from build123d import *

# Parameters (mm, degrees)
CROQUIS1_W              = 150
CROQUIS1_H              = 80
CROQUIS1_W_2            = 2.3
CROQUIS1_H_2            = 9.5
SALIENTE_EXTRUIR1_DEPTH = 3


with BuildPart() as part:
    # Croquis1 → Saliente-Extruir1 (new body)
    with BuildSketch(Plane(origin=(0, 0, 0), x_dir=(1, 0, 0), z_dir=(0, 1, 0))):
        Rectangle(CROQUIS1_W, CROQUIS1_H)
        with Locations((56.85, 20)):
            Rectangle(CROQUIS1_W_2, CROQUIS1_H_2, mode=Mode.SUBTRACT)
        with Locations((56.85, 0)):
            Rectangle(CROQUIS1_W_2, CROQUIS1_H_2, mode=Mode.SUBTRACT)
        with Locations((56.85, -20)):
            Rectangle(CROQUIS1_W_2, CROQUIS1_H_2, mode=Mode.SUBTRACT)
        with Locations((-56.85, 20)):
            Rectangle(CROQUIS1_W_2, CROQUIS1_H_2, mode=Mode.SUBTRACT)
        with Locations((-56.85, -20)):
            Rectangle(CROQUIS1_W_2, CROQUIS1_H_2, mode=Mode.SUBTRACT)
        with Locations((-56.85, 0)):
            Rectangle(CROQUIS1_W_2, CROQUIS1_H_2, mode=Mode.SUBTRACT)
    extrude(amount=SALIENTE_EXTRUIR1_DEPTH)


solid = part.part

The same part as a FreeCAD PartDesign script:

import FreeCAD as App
import Part
import Sketcher
from FreeCAD import Vector
Q = App.Units.Quantity


def add_polygon(sketch, points):
    """Adds a closed chain of lines whose ends are joined by coincident constraints."""
    first, n = sketch.GeometryCount, len(points)
    for a, b in zip(points, points[1:] + points[:1]):
        sketch.addGeometry(Part.LineSegment(App.Vector(*a, 0), App.Vector(*b, 0)), False)
    for i in range(n):
        sketch.addConstraint(Sketcher.Constraint("Coincident", first + i, 2, first + (i + 1) % n, 1))

doc = App.newDocument("Part")
body = doc.addObject("PartDesign::Body", "Body")

sketch1 = body.newObject("Sketcher::SketchObject", "Sketch")
sketch1.AttachmentSupport = (doc.getObject("XZ_Plane"), [""])
sketch1.MapMode = "FlatFace"
add_polygon(sketch1, [(-75, -40), (-75, 40), (75, 40), (75, -40)])
add_polygon(sketch1, [(-55.7, 24.8), (-58, 24.8), (-58, 15.2), (-55.7, 15.2)])
add_polygon(sketch1, [(58, 24.8), (55.7, 24.8), (55.7, 15.2), (58, 15.2)])
add_polygon(sketch1, [(-55.7, 4.8), (-58, 4.8), (-58, -4.8), (-55.7, -4.8)])
add_polygon(sketch1, [(-55.7, -15.2), (-58, -15.2), (-58, -24.8), (-55.7, -24.8)])
add_polygon(sketch1, [(58, 4.8), (55.7, 4.8), (55.7, -4.8), (58, -4.8)])
add_polygon(sketch1, [(58, -15.2), (55.7, -15.2), (55.7, -24.8), (58, -24.8)])
sketch1.addConstraint(Sketcher.Constraint("Vertical", 0))
sketch1.addConstraint(Sketcher.Constraint("Horizontal", 1))
sketch1.addConstraint(Sketcher.Constraint("Vertical", 2))
sketch1.addConstraint(Sketcher.Constraint("Horizontal", 3))
sketch1.addConstraint(Sketcher.Constraint("Horizontal", 4))
sketch1.addConstraint(Sketcher.Constraint("Vertical", 5))
sketch1.addConstraint(Sketcher.Constraint("Horizontal", 6))
sketch1.addConstraint(Sketcher.Constraint("Vertical", 7))
sketch1.addConstraint(Sketcher.Constraint("Horizontal", 8))
sketch1.addConstraint(Sketcher.Constraint("Vertical", 9))
sketch1.addConstraint(Sketcher.Constraint("Horizontal", 10))
sketch1.addConstraint(Sketcher.Constraint("Vertical", 11))
sketch1.addConstraint(Sketcher.Constraint("Horizontal", 12))
sketch1.addConstraint(Sketcher.Constraint("Vertical", 13))
sketch1.addConstraint(Sketcher.Constraint("Horizontal", 14))
sketch1.addConstraint(Sketcher.Constraint("Vertical", 15))
sketch1.addConstraint(Sketcher.Constraint("Horizontal", 16))
sketch1.addConstraint(Sketcher.Constraint("Vertical", 17))
sketch1.addConstraint(Sketcher.Constraint("Horizontal", 18))
sketch1.addConstraint(Sketcher.Constraint("Vertical", 19))
sketch1.addConstraint(Sketcher.Constraint("Horizontal", 20))
sketch1.addConstraint(Sketcher.Constraint("Vertical", 21))
sketch1.addConstraint(Sketcher.Constraint("Horizontal", 22))
sketch1.addConstraint(Sketcher.Constraint("Vertical", 23))
sketch1.addConstraint(Sketcher.Constraint("Horizontal", 24))
sketch1.addConstraint(Sketcher.Constraint("Vertical", 25))
sketch1.addConstraint(Sketcher.Constraint("Horizontal", 26))
sketch1.addConstraint(Sketcher.Constraint("Vertical", 27))
sketch1.addConstraint(Sketcher.Constraint("Symmetric", 0, 2, 2, 2, -1, 1))
sketch1.addConstraint(Sketcher.Constraint("Symmetric", 10, 2, 16, 2, -1, 1))
sketch1.addConstraint(Sketcher.Constraint("Symmetric", 8, 2, 18, 2, -1, 1))
sketch1.addConstraint(Sketcher.Constraint("Symmetric", 14, 2, 20, 2, -1, 1))
sketch1.addConstraint(Sketcher.Constraint("Symmetric", 12, 2, 22, 2, -1, 1))
sketch1.addConstraint(Sketcher.Constraint("Symmetric", 6, 2, 24, 2, -1, 1))
sketch1.addConstraint(Sketcher.Constraint("Symmetric", 4, 2, 26, 2, -1, 1))
sketch1.addConstraint(Sketcher.Constraint("Symmetric", 7, 2, 8, 2, -2))
sketch1.addConstraint(Sketcher.Constraint("Symmetric", 5, 2, 10, 2, -2))
sketch1.addConstraint(Sketcher.Constraint("Horizontal", 15, 2, 20, 2))
sketch1.addConstraint(Sketcher.Constraint("Vertical", 5, 2, 12, 2))
sketch1.addConstraint(Sketcher.Constraint("Vertical", 7, 2, 14, 2))
sketch1.addConstraint(Sketcher.Constraint("Equal", 11, 13))
sketch1.addConstraint(Sketcher.Constraint("DistanceX", 1, 1, 1, 2, Q("150 mm")))
sketch1.addConstraint(Sketcher.Constraint("DistanceY", 0, 1, 0, 2, Q("80 mm")))
sketch1.addConstraint(Sketcher.Constraint("DistanceX", 4, 2, 4, 1, Q("2.3 mm")))
sketch1.addConstraint(Sketcher.Constraint("DistanceY", 5, 2, 5, 1, Q("9.5 mm")))
sketch1.addConstraint(Sketcher.Constraint("DistanceX", 4, 2, -1, 1, Q("58 mm")))
sketch1.addConstraint(Sketcher.Constraint("DistanceY", 12, 2, 4, 2, Q("20 mm")))
pad1 = body.newObject("PartDesign::Pad", "Pad")
pad1.Profile = sketch1
pad1.Length = 3
pad1.Reversed = True

doc.recompute()
